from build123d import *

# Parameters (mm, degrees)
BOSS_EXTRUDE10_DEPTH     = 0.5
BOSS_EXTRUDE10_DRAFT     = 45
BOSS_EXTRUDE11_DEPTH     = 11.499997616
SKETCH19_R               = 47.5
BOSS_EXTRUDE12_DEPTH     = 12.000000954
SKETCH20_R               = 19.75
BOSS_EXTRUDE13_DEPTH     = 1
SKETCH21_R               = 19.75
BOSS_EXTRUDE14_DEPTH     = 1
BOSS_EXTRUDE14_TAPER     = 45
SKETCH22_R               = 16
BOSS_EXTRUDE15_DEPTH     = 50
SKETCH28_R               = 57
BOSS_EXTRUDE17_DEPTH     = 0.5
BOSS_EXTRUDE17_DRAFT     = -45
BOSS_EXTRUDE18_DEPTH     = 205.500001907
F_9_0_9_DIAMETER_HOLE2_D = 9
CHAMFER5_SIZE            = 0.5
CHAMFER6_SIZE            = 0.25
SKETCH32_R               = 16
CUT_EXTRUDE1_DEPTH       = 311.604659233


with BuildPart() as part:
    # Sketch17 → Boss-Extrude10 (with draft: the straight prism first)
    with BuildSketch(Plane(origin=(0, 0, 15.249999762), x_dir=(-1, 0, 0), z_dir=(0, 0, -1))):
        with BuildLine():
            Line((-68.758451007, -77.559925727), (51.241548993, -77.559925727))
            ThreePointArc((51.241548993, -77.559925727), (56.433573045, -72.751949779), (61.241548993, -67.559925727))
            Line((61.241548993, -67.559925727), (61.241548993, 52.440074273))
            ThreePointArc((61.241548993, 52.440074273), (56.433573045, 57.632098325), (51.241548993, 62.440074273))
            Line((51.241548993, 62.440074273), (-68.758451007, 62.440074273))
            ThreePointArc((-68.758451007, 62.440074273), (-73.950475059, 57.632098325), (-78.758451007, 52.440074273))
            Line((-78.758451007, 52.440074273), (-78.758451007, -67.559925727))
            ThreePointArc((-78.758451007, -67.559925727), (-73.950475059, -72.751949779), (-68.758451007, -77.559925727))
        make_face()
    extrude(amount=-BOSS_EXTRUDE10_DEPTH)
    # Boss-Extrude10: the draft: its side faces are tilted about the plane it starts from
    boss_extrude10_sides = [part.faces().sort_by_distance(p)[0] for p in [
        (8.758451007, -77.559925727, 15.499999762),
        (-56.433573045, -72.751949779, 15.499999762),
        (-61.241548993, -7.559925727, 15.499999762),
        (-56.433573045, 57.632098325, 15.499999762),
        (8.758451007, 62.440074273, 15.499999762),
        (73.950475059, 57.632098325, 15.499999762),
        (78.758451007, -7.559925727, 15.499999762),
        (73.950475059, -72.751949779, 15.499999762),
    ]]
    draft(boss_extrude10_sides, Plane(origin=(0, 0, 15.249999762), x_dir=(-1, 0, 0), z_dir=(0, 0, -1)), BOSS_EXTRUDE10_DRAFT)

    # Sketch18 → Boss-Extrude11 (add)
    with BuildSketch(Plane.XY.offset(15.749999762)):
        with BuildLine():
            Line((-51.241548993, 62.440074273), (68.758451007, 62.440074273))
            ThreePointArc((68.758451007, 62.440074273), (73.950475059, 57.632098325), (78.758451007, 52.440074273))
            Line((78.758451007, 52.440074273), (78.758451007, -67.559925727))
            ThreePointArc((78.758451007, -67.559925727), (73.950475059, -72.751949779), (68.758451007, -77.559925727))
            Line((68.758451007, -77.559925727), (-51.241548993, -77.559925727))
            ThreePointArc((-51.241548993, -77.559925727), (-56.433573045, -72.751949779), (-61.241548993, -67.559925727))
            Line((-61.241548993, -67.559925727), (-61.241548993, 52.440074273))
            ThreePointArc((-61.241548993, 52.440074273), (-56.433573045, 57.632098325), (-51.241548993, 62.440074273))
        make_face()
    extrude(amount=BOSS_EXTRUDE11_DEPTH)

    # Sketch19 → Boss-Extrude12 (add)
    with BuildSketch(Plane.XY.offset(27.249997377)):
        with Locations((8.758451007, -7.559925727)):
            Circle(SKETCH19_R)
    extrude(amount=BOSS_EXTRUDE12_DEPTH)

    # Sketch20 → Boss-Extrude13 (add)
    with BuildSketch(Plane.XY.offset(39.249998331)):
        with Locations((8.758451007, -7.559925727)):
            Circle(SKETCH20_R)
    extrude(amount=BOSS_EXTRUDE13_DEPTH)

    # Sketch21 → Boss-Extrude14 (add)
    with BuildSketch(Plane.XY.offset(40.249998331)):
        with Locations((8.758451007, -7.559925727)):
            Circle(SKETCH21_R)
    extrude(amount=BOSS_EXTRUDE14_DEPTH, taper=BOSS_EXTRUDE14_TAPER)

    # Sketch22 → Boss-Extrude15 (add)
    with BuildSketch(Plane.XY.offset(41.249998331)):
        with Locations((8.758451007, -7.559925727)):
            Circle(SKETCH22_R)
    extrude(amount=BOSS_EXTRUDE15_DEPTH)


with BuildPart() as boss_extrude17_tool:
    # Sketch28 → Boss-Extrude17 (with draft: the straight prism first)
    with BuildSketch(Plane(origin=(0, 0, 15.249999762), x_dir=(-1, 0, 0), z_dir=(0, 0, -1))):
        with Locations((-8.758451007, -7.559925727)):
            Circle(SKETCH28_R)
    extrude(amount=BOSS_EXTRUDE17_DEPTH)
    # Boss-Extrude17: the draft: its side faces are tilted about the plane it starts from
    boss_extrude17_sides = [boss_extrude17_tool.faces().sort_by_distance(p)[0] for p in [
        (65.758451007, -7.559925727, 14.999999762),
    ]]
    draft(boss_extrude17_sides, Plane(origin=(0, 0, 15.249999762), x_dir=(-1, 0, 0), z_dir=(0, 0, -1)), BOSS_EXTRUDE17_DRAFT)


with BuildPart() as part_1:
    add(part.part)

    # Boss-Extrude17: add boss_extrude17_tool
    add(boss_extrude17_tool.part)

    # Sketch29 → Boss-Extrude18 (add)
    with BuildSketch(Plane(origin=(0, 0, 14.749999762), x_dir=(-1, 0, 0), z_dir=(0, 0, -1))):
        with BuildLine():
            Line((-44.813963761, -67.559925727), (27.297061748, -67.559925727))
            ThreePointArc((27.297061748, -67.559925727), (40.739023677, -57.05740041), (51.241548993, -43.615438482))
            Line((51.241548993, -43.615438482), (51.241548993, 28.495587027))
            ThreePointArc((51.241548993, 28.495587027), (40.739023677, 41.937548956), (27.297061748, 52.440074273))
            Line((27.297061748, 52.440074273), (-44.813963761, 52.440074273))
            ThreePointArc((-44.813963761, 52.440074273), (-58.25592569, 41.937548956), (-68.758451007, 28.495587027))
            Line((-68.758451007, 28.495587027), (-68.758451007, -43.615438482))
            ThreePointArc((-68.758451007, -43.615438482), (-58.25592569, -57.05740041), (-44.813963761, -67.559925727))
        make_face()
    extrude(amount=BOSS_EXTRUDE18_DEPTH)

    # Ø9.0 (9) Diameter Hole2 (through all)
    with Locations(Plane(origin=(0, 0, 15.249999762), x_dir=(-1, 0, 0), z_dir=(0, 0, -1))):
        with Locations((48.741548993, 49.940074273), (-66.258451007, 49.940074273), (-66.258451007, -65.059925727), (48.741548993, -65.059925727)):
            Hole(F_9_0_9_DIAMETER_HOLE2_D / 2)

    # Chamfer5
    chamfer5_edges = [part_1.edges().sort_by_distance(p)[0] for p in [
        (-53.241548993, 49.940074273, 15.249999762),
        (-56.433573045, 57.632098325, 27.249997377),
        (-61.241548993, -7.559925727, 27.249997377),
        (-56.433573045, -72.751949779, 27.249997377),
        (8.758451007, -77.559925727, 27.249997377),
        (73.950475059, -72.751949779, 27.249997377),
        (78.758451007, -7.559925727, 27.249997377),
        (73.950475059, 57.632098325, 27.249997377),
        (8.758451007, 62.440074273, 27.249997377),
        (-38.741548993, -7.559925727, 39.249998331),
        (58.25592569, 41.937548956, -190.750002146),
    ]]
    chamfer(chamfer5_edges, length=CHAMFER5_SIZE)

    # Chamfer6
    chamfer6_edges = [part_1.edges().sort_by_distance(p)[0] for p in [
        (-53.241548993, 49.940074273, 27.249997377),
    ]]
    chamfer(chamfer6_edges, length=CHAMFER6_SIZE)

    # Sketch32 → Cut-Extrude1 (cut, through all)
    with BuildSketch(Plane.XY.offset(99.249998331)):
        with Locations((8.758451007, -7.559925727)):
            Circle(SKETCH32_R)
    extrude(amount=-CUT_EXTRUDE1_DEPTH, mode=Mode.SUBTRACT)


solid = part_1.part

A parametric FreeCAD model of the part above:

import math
import FreeCAD as App
import Part
import Sketcher
Q = App.Units.Quantity


def edges_at(feature, points):
    """Names of the edges that pass closest to the given points."""
    edges = feature.Shape.Edges
    near = lambda p: min(range(len(edges)), key=lambda i: edges[i].distToShape(Part.Vertex(*p))[0])
    return sorted({f"Edge{near(p) + 1}" for p in points})


def faces_at(feature, points):
    """Names of the faces that lie closest to the given points."""
    faces = feature.Shape.Faces
    near = lambda p: min(range(len(faces)), key=lambda i: faces[i].distToShape(Part.Vertex(*p))[0])
    return sorted({f"Face{near(p) + 1}" for p in points})

doc = App.newDocument("Part")
body = doc.addObject("PartDesign::Body", "Body")

# Sketch on XY plane
sketch1 = body.newObject("Sketcher::SketchObject", "Sketch")
sketch1.AttachmentSupport = (doc.getObject("XY_Plane"), [""])
sketch1.MapMode = "FlatFace"
sketch1.AttachmentOffset = App.Placement(App.Vector(0, 0, 15.25), App.Rotation())
sketch1.addGeometry(Part.LineSegment(App.Vector(68.758451, -77.559926, 0), App.Vector(-51.241549, -77.559926, 0)), False)
sketch1.addGeometry(Part.ArcOfCircle(Part.Circle(App.Vector(8.758451, -7.559926, 0), App.Vector(0, 0, 1), 92.195445), math.radians(-139.398705), math.radians(-130.601295)), False)
sketch1.addGeometry(Part.LineSegment(App.Vector(-61.241549, -67.559926, 0), App.Vector(-61.241549, 52.440074, 0)), False)
sketch1.addGeometry(Part.ArcOfCircle(Part.Circle(App.Vector(8.758451, -7.559926, 0), App.Vector(0, 0, 1), 92.195445), math.radians(130.601295), math.radians(139.398705)), False)
sketch1.addGeometry(Part.LineSegment(App.Vector(-51.241549, 62.440074, 0), App.Vector(68.758451, 62.440074, 0)), False)
sketch1.addGeometry(Part.ArcOfCircle(Part.Circle(App.Vector(8.758451, -7.559926, 0), App.Vector(0, 0, 1), 92.195445), math.radians(40.601295), math.radians(49.398705)), False)
sketch1.addGeometry(Part.LineSegment(App.Vector(78.758451, 52.440074, 0), App.Vector(78.758451, -67.559926, 0)), False)
sketch1.addGeometry(Part.ArcOfCircle(Part.Circle(App.Vector(8.758451, -7.559926, 0), App.Vector(0, 0, 1), 92.195445), math.radians(-49.398705), math.radians(-40.601295)), False)
sketch1.addConstraint(Sketcher.Constraint("Coincident", 0, 2, 1, 2))
sketch1.addConstraint(Sketcher.Constraint("Coincident", 1, 1, 2, 1))
sketch1.addConstraint(Sketcher.Constraint("Coincident", 2, 2, 3, 2))
sketch1.addConstraint(Sketcher.Constraint("Coincident", 3, 1, 4, 1))
sketch1.addConstraint(Sketcher.Constraint("Coincident", 4, 2, 5, 2))
sketch1.addConstraint(Sketcher.Constraint("Coincident", 5, 1, 6, 1))
sketch1.addConstraint(Sketcher.Constraint("Coincident", 6, 2, 7, 2))
sketch1.addConstraint(Sketcher.Constraint("Coincident", 7, 1, 0, 1))
sketch1.addConstraint(Sketcher.Constraint("Horizontal", 0))
sketch1.addConstraint(Sketcher.Constraint("Vertical", 2))
sketch1.addConstraint(Sketcher.Constraint("Horizontal", 4))
sketch1.addConstraint(Sketcher.Constraint("Vertical", 6))
sketch1.addConstraint(Sketcher.Constraint("Coincident", 3, 3, 1, 3))
sketch1.addConstraint(Sketcher.Constraint("Coincident", 5, 3, 1, 3))
sketch1.addConstraint(Sketcher.Constraint("Coincident", 7, 3, 1, 3))
sketch1.addConstraint(Sketcher.Constraint("Equal", 1, 3))
sketch1.addConstraint(Sketcher.Constraint("Equal", 3, 5))
sketch1.addConstraint(Sketcher.Constraint("Equal", 5, 7))
sketch1.addConstraint(Sketcher.Constraint("Horizontal", 2, 2, 5, 1))
sketch1.addConstraint(Sketcher.Constraint("Vertical", 0, 2, 3, 1))
sketch1.addConstraint(Sketcher.Constraint("Equal", 4, 2))
sketch1.addConstraint(Sketcher.Constraint("DistanceX", 0, 2, 0, 1, Q("120 mm")))
sketch1.addConstraint(Sketcher.Constraint("DistanceY", 0, 2, 5, 3, Q("70 mm")))
sketch1.addConstraint(Sketcher.Constraint("DistanceX", -1, 1, 1, 3, Q("8.758451 mm")))
sketch1.addConstraint(Sketcher.Constraint("DistanceY", 1, 3, -1, 1, Q("7.559926 mm")))
pad1 = body.newObject("PartDesign::Pad", "Pad")
pad1.Profile = sketch1
pad1.Length = 0.5
doc.recompute()

datumplane = body.newObject("PartDesign::Plane", "DatumPlane")
datumplane.AttachmentSupport = (doc.getObject("XY_Plane"), [""])
datumplane.MapMode = "FlatFace"
datumplane.AttachmentOffset = App.Placement(App.Vector(0, 0, 15.25), App.Rotation())
draft = body.newObject("PartDesign::Draft", "Draft")
draft.Base = (pad1, faces_at(pad1, [
    (8.758, -77.56, 15.5),
    (-56.434, -72.752, 15.5),
    (-61.242, -7.56, 15.5),
    (-56.434, 57.632, 15.5),
    (8.758, 62.44, 15.5),
    (73.95, 57.632, 15.5),
    (78.758, -7.56, 15.5),
    (73.95, -72.752, 15.5),
]))
draft.NeutralPlane = (datumplane, [""])
draft.Angle = 45
draft.Reversed = True

# Sketch on XY plane
sketch2 = body.newObject("Sketcher::SketchObject", "Sketch001")
sketch2.AttachmentSupport = (doc.getObject("XY_Plane"), [""])
sketch2.MapMode = "FlatFace"
sketch2.AttachmentOffset = App.Placement(App.Vector(0, 0, 15.75), App.Rotation())
sketch2.addGeometry(Part.LineSegment(App.Vector(68.758451, 62.440074, 0), App.Vector(-51.241549, 62.440074, 0)), False)
sketch2.addGeometry(Part.ArcOfCircle(Part.Circle(App.Vector(8.758451, -7.559926, 0), App.Vector(0, 0, 1), 92.195445), math.radians(130.601295), math.radians(139.398705)), False)
sketch2.addGeometry(Part.LineSegment(App.Vector(-61.241549, 52.440074, 0), App.Vector(-61.241549, -67.559926, 0)), False)
sketch2.addGeometry(Part.ArcOfCircle(Part.Circle(App.Vector(8.758451, -7.559926, 0), App.Vector(0, 0, 1), 92.195445), math.radians(-139.398705), math.radians(-130.601295)), False)
sketch2.addGeometry(Part.LineSegment(App.Vector(-51.241549, -77.559926, 0), App.Vector(68.758451, -77.559926, 0)), False)
sketch2.addGeometry(Part.ArcOfCircle(Part.Circle(App.Vector(8.758451, -7.559926, 0), App.Vector(0, 0, 1), 92.195445), math.radians(-49.398705), math.radians(-40.601295)), False)
sketch2.addGeometry(Part.LineSegment(App.Vector(78.758451, -67.559926, 0), App.Vector(78.758451, 52.440074, 0)), False)
sketch2.addGeometry(Part.ArcOfCircle(Part.Circle(App.Vector(8.758451, -7.559926, 0), App.Vector(0, 0, 1), 92.195445), math.radians(40.601295), math.radians(49.398705)), False)
sketch2.addConstraint(Sketcher.Constraint("Coincident", 0, 2, 1, 1))
sketch2.addConstraint(Sketcher.Constraint("Coincident", 1, 2, 2, 1))
sketch2.addConstraint(Sketcher.Constraint("Coincident", 2, 2, 3, 1))
sketch2.addConstraint(Sketcher.Constraint("Coincident", 3, 2, 4, 1))
sketch2.addConstraint(Sketcher.Constraint("Coincident", 4, 2, 5, 1))
sketch2.addConstraint(Sketcher.Constraint("Coincident", 5, 2, 6, 1))
sketch2.addConstraint(Sketcher.Constraint("Coincident", 6, 2, 7, 1))
sketch2.addConstraint(Sketcher.Constraint("Coincident", 7, 2, 0, 1))
sketch2.addConstraint(Sketcher.Constraint("Horizontal", 0))
sketch2.addConstraint(Sketcher.Constraint("Vertical", 2))
sketch2.addConstraint(Sketcher.Constraint("Horizontal", 4))
sketch2.addConstraint(Sketcher.Constraint("Vertical", 6))
sketch2.addConstraint(Sketcher.Constraint("Coincident", 3, 3, 1, 3))
sketch2.addConstraint(Sketcher.Constraint("Coincident", 5, 3, 1, 3))
sketch2.addConstraint(Sketcher.Constraint("Coincident", 7, 3, 1, 3))
sketch2.addConstraint(Sketcher.Constraint("Equal", 1, 3))
sketch2.addConstraint(Sketcher.Constraint("Equal", 3, 5))
sketch2.addConstraint(Sketcher.Constraint("Equal", 5, 7))
sketch2.addConstraint(Sketcher.Constraint("Horizontal", 2, 2, 5, 2))
sketch2.addConstraint(Sketcher.Constraint("Vertical", 0, 2, 3, 2))
sketch2.addConstraint(Sketcher.Constraint("Equal", 4, 2))
sketch2.addConstraint(Sketcher.Constraint("DistanceX", 0, 2, 0, 1, Q("120 mm")))
sketch2.addConstraint(Sketcher.Constraint("DistanceY", 5, 3, 0, 2, Q("70 mm")))
sketch2.addConstraint(Sketcher.Constraint("DistanceX", -1, 1, 1, 3, Q("8.758451 mm")))
sketch2.addConstraint(Sketcher.Constraint("DistanceY", 1, 3, -1, 1, Q("7.559926 mm")))
pad2 = body.newObject("PartDesign::Pad", "Pad001")
pad2.Profile = sketch2
pad2.Length = 11.499998

# Sketch on XY plane
sketch3 = body.newObject("Sketcher::SketchObject", "Sketch002")
sketch3.AttachmentSupport = (doc.getObject("XY_Plane"), [""])
sketch3.MapMode = "FlatFace"
sketch3.AttachmentOffset = App.Placement(App.Vector(0, 0, 27.249997), App.Rotation())
sketch3.addGeometry(Part.Circle(App.Vector(8.758451, -7.559926, 0), App.Vector(0, 0, 1), 47.5), False)
sketch3.addConstraint(Sketcher.Constraint("Diameter", 0, Q("95 mm")))
sketch3.addConstraint(Sketcher.Constraint("DistanceX", -1, 1, 0, 3, Q("8.758451 mm")))
sketch3.addConstraint(Sketcher.Constraint("DistanceY", 0, 3, -1, 1, Q("7.559926 mm")))
pad3 = body.newObject("PartDesign::Pad", "Pad002")
pad3.Profile = sketch3
pad3.Length = 12.000001

# Sketch on XY plane
sketch4 = body.newObject("Sketcher::SketchObject", "Sketch003")
sketch4.AttachmentSupport = (doc.getObject("XY_Plane"), [""])
sketch4.MapMode = "FlatFace"
sketch4.AttachmentOffset = App.Placement(App.Vector(0, 0, 39.249998), App.Rotation())
sketch4.addGeometry(Part.Circle(App.Vector(8.758451, -7.559926, 0), App.Vector(0, 0, 1), 19.75), False)
sketch4.addConstraint(Sketcher.Constraint("Diameter", 0, Q("39.5 mm")))
sketch4.addConstraint(Sketcher.Constraint("DistanceX", -1, 1, 0, 3, Q("8.758451 mm")))
sketch4.addConstraint(Sketcher.Constraint("DistanceY", 0, 3, -1, 1, Q("7.559926 mm")))
pad4 = body.newObject("PartDesign::Pad", "Pad003")
pad4.Profile = sketch4
pad4.Length = 1

# Sketch on XY plane
sketch5 = body.newObject("Sketcher::SketchObject", "Sketch004")
sketch5.AttachmentSupport = (doc.getObject("XY_Plane"), [""])
sketch5.MapMode = "FlatFace"
sketch5.AttachmentOffset = App.Placement(App.Vector(0, 0, 40.249998), App.Rotation())
sketch5.addGeometry(Part.Circle(App.Vector(8.758451, -7.559926, 0), App.Vector(0, 0, 1), 19.75), False)
sketch5.addConstraint(Sketcher.Constraint("Diameter", 0, Q("39.5 mm")))
sketch5.addConstraint(Sketcher.Constraint("DistanceX", -1, 1, 0, 3, Q("8.758451 mm")))
sketch5.addConstraint(Sketcher.Constraint("DistanceY", 0, 3, -1, 1, Q("7.559926 mm")))
pad5 = body.newObject("PartDesign::Pad", "Pad004")
pad5.Profile = sketch5
pad5.Length = 1
pad5.TaperAngle = -45

# Sketch on XY plane
sketch6 = body.newObject("Sketcher::SketchObject", "Sketch005")
sketch6.AttachmentSupport = (doc.getObject("XY_Plane"), [""])
sketch6.MapMode = "FlatFace"
sketch6.AttachmentOffset = App.Placement(App.Vector(0, 0, 41.249998), App.Rotation())
sketch6.addGeometry(Part.Circle(App.Vector(8.758451, -7.559926, 0), App.Vector(0, 0, 1), 16), False)
sketch6.addConstraint(Sketcher.Constraint("Diameter", 0, Q("32 mm")))
sketch6.addConstraint(Sketcher.Constraint("DistanceX", -1, 1, 0, 3, Q("8.758451 mm")))
sketch6.addConstraint(Sketcher.Constraint("DistanceY", 0, 3, -1, 1, Q("7.559926 mm")))
pad6 = body.newObject("PartDesign::Pad", "Pad005")
pad6.Profile = sketch6
pad6.Length = 50
body2 = doc.addObject("PartDesign::Body", "Body001")

# Sketch on XY plane
sketch7 = body2.newObject("Sketcher::SketchObject", "Sketch006")
sketch7.AttachmentSupport = (doc.getObject("XY_Plane001"), [""])
sketch7.MapMode = "FlatFace"
sketch7.AttachmentOffset = App.Placement(App.Vector(0, 0, 15.25), App.Rotation())
sketch7.addGeometry(Part.Circle(App.Vector(8.758451, -7.559926, 0), App.Vector(0, 0, 1), 57), False)
sketch7.addConstraint(Sketcher.Constraint("Diameter", 0, Q("114 mm")))
sketch7.addConstraint(Sketcher.Constraint("DistanceX", -1, 1, 0, 3, Q("8.758451 mm")))
sketch7.addConstraint(Sketcher.Constraint("DistanceY", 0, 3, -1, 1, Q("7.559926 mm")))
pad7 = body2.newObject("PartDesign::Pad", "Pad006")
pad7.Profile = sketch7
pad7.Length = 0.5
pad7.Reversed = True
doc.recompute()

datumplane2 = body2.newObject("PartDesign::Plane", "DatumPlane001")
datumplane2.AttachmentSupport = (doc.getObject("XY_Plane001"), [""])
datumplane2.MapMode = "FlatFace"
datumplane2.AttachmentOffset = App.Placement(App.Vector(0, 0, 15.25), App.Rotation())
draft2 = body2.newObject("PartDesign::Draft", "Draft001")
draft2.Base = (pad7, faces_at(pad7, [(65.758, -7.56, 15)]))
draft2.NeutralPlane = (datumplane2, [""])
draft2.Angle = 45
draft2.Reversed = False
doc.recompute()

boolean = body.newObject("PartDesign::Boolean", "Boolean")
boolean.Type = "Fuse"
boolean.addObjects([body2])

# Sketch on XY plane
sketch8 = body.newObject("Sketcher::SketchObject", "Sketch007")
sketch8.AttachmentSupport = (doc.getObject("XY_Plane"), [""])
sketch8.MapMode = "FlatFace"
sketch8.AttachmentOffset = App.Placement(App.Vector(0, 0, 14.75), App.Rotation())
sketch8.addGeometry(Part.LineSegment(App.Vector(44.813964, -67.559926, 0), App.Vector(-27.297062, -67.559926, 0)), False)
sketch8.addGeometry(Part.ArcOfCircle(Part.Circle(App.Vector(8.758451, -7.559926, 0), App.Vector(0, 0, 1), 70), math.radians(-148.997281), math.radians(-121.002719)), False)
sketch8.addGeometry(Part.LineSegment(App.Vector(-51.241549, -43.615438, 0), App.Vector(-51.241549, 28.495587, 0)), False)
sketch8.addGeometry(Part.ArcOfCircle(Part.Circle(App.Vector(8.758451, -7.559926, 0), App.Vector(0, 0, 1), 70), math.radians(121.002719), math.radians(148.997281)), False)
sketch8.addGeometry(Part.LineSegment(App.Vector(-27.297062, 52.440074, 0), App.Vector(44.813964, 52.440074, 0)), False)
sketch8.addGeometry(Part.ArcOfCircle(Part.Circle(App.Vector(8.758451, -7.559926, 0), App.Vector(0, 0, 1), 70), math.radians(31.002719), math.radians(58.997281)), False)
sketch8.addGeometry(Part.LineSegment(App.Vector(68.758451, 28.495587, 0), App.Vector(68.758451, -43.615438, 0)), False)
sketch8.addGeometry(Part.ArcOfCircle(Part.Circle(App.Vector(8.758451, -7.559926, 0), App.Vector(0, 0, 1), 70), math.radians(-58.997281), math.radians(-31.002719)), False)
sketch8.addConstraint(Sketcher.Constraint("Coincident", 0, 2, 1, 2))
sketch8.addConstraint(Sketcher.Constraint("Coincident", 1, 1, 2, 1))
sketch8.addConstraint(Sketcher.Constraint("Coincident", 2, 2, 3, 2))
sketch8.addConstraint(Sketcher.Constraint("Coincident", 3, 1, 4, 1))
sketch8.addConstraint(Sketcher.Constraint("Coincident", 4, 2, 5, 2))
sketch8.addConstraint(Sketcher.Constraint("Coincident", 5, 1, 6, 1))
sketch8.addConstraint(Sketcher.Constraint("Coincident", 6, 2, 7, 2))
sketch8.addConstraint(Sketcher.Constraint("Coincident", 7, 1, 0, 1))
sketch8.addConstraint(Sketcher.Constraint("Horizontal", 0))
sketch8.addConstraint(Sketcher.Constraint("Vertical", 2))
sketch8.addConstraint(Sketcher.Constraint("Horizontal", 4))
sketch8.addConstraint(Sketcher.Constraint("Vertical", 6))
sketch8.addConstraint(Sketcher.Constraint("Coincident", 3, 3, 1, 3))
sketch8.addConstraint(Sketcher.Constraint("Coincident", 5, 3, 1, 3))
sketch8.addConstraint(Sketcher.Constraint("Coincident", 7, 3, 1, 3))
sketch8.addConstraint(Sketcher.Constraint("Equal", 1, 3))
sketch8.addConstraint(Sketcher.Constraint("Equal", 3, 5))
sketch8.addConstraint(Sketcher.Constraint("Equal", 5, 7))
sketch8.addConstraint(Sketcher.Constraint("Horizontal", 2, 2, 5, 1))
sketch8.addConstraint(Sketcher.Constraint("Vertical", 0, 2, 3, 1))
sketch8.addConstraint(Sketcher.Constraint("Equal", 4, 2))
sketch8.addConstraint(Sketcher.Constraint("Radius", 1, Q("70 mm")))
sketch8.addConstraint(Sketcher.Constraint("DistanceY", 0, 2, 1, 3, Q("60 mm")))
sketch8.addConstraint(Sketcher.Constraint("DistanceX", -1, 1, 1, 3, Q("8.758451 mm")))
sketch8.addConstraint(Sketcher.Constraint("DistanceY", 1, 1, -1, 1, Q("43.615438 mm")))
pad8 = body.newObject("PartDesign::Pad", "Pad007")
pad8.Profile = sketch8
pad8.Length = 205.500002
pad8.Reversed = True

# Sketch on XY plane
sketch9 = body.newObject("Sketcher::SketchObject", "Sketch008")
sketch9.AttachmentSupport = (doc.getObject("XY_Plane"), [""])
sketch9.MapMode = "FlatFace"
sketch9.AttachmentOffset = App.Placement(App.Vector(0, 0, 15.25), App.Rotation())
sketch9.addGeometry(Part.Circle(App.Vector(-48.741549, 49.940074, 0), App.Vector(0, 0, 1), 4.5), False)
sketch9.addGeometry(Part.Circle(App.Vector(66.258451, 49.940074, 0), App.Vector(0, 0, 1), 4.5), False)
sketch9.addGeometry(Part.Circle(App.Vector(66.258451, -65.059926, 0), App.Vector(0, 0, 1), 4.5), False)
sketch9.addGeometry(Part.Circle(App.Vector(-48.741549, -65.059926, 0), App.Vector(0, 0, 1), 4.5), False)
sketch9.addConstraint(Sketcher.Constraint("Equal", 0, 1))
sketch9.addConstraint(Sketcher.Constraint("Equal", 1, 2))
sketch9.addConstraint(Sketcher.Constraint("Equal", 2, 3))
sketch9.addConstraint(Sketcher.Constraint("Horizontal", 0, 3, 1, 3))
sketch9.addConstraint(Sketcher.Constraint("Horizontal", 2, 3, 3, 3))
sketch9.addConstraint(Sketcher.Constraint("Vertical", 1, 3, 2, 3))
sketch9.addConstraint(Sketcher.Constraint("Vertical", 0, 3, 3, 3))
sketch9.addConstraint(Sketcher.Constraint("Diameter", 0, Q("9 mm")))
sketch9.addConstraint(Sketcher.Constraint("DistanceX", 0, 3, 1, 3, Q("115 mm")))
sketch9.addConstraint(Sketcher.Constraint("DistanceY", 2, 3, 1, 3, Q("115 mm")))
sketch9.addConstraint(Sketcher.Constraint("DistanceX", 0, 3, -1, 1, Q("48.741549 mm")))
sketch9.addConstraint(Sketcher.Constraint("DistanceY", -1, 1, 0, 3, Q("49.940074 mm")))
doc.recompute()
hole = body.newObject("PartDesign::Hole", "Hole")
hole.Profile = sketch9
hole.ThreadType = "None"
hole.Diameter = 9
hole.DepthType = "ThroughAll"
hole.Reversed = True
doc.recompute()

chamfer = body.newObject("PartDesign::Chamfer", "Chamfer")
chamfer.Base = (hole, edges_at(hole, [
    (-53.242, 49.94, 15.25),
    (-56.434, 57.632, 27.25),
    (-61.242, -7.56, 27.25),
    (-56.434, -72.752, 27.25),
    (8.758, -77.56, 27.25),
    (73.95, -72.752, 27.25),
    (78.758, -7.56, 27.25),
    (73.95, 57.632, 27.25),
    (8.758, 62.44, 27.25),
    (-38.742, -7.56, 39.25),
    (58.256, 41.938, -190.75),
]))
chamfer.Size = 0.5
doc.recompute()

chamfer2 = body.newObject("PartDesign::Chamfer", "Chamfer001")
chamfer2.Base = (chamfer, edges_at(chamfer, [(-53.242, 49.94, 27.25)]))
chamfer2.Size = 0.25

# Sketch on XY plane
sketch10 = body.newObject("Sketcher::SketchObject", "Sketch009")
sketch10.AttachmentSupport = (doc.getObject("XY_Plane"), [""])
sketch10.MapMode = "FlatFace"
sketch10.AttachmentOffset = App.Placement(App.Vector(0, 0, 99.249998), App.Rotation())
sketch10.addGeometry(Part.Circle(App.Vector(8.758451, -7.559926, 0), App.Vector(0, 0, 1), 16), False)
sketch10.addConstraint(Sketcher.Constraint("Diameter", 0, Q("32 mm")))
sketch10.addConstraint(Sketcher.Constraint("DistanceX", -1, 1, 0, 3, Q("8.758451 mm")))
sketch10.addConstraint(Sketcher.Constraint("DistanceY", 0, 3, -1, 1, Q("7.559926 mm")))
pocket1 = body.newObject("PartDesign::Pocket", "Pocket")
pocket1.Profile = sketch10
pocket1.Type = "ThroughAll"

doc.recompute()
